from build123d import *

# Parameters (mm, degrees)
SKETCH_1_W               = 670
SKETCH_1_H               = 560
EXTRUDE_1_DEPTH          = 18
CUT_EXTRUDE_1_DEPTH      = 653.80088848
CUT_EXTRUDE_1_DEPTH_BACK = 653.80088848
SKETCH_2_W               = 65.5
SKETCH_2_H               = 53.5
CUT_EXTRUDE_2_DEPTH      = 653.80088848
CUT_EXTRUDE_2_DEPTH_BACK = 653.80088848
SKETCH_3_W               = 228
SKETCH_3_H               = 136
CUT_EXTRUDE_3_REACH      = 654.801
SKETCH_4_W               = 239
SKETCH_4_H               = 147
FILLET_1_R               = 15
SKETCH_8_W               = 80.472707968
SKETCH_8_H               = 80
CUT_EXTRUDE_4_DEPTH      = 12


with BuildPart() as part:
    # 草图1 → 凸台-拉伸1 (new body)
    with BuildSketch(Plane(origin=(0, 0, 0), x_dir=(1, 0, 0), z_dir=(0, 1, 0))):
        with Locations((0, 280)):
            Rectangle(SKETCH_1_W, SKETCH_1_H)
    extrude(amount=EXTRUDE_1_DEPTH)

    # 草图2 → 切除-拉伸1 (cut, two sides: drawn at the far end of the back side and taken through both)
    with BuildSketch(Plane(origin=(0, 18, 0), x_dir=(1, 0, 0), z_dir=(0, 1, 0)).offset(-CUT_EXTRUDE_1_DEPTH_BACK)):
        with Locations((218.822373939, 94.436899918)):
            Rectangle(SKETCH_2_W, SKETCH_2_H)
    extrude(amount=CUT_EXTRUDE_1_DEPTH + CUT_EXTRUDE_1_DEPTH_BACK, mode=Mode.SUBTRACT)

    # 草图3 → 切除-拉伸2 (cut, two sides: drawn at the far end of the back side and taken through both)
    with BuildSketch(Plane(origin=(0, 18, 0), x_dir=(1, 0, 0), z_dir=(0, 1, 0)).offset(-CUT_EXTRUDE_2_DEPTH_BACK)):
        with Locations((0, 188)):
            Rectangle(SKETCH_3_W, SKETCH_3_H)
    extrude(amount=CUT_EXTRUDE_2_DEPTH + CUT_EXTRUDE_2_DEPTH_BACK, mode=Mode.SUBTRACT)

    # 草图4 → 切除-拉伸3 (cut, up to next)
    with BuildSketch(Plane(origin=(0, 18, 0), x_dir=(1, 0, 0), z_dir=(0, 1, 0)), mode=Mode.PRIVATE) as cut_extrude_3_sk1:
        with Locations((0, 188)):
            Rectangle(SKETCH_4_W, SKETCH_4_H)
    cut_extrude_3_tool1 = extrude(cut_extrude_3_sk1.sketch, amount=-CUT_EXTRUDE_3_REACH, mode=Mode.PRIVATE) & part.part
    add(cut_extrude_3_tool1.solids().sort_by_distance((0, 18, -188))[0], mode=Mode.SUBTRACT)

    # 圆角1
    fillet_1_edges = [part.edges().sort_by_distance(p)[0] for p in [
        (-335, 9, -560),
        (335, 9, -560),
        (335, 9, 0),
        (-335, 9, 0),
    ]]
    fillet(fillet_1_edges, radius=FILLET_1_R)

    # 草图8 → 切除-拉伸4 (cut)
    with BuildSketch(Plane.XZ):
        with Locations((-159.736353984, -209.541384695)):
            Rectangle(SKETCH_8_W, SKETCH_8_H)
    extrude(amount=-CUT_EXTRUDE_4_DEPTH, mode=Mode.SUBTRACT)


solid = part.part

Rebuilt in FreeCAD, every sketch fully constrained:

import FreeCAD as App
import Part
import Sketcher

V = App.Vector


def edges_at(feature, points):
    """Names of the edges that pass closest to the given points."""
    edges = feature.Shape.Edges
    near = lambda p: min(range(len(edges)), key=lambda i: edges[i].distToShape(Part.Vertex(*p))[0])
    return sorted({f"Edge{near(p) + 1}" for p in points})

doc = App.newDocument("Part")
body = doc.addObject("PartDesign::Body", "Body")

# Sketch on XZ plane
sketch1 = body.newObject("Sketcher::SketchObject", "Sketch")
sketch1.AttachmentSupport = (doc.getObject("XZ_Plane"), [""])
sketch1.MapMode = "FlatFace"
sketch1.addGeometry([
    Part.LineSegment(V(-335, -560, 0), V(-335, 0, 0)),
    Part.LineSegment(V(-335, 0, 0), V(335, 0, 0)),
    Part.LineSegment(V(335, 0, 0), V(335, -560, 0)),
    Part.LineSegment(V(335, -560, 0), V(-335, -560, 0)),
], False)
sketch1.addConstraint([
    Sketcher.Constraint("Coincident", 0, 2, 1, 1),
    Sketcher.Constraint("Coincident", 1, 2, 2, 1),
    Sketcher.Constraint("Coincident", 2, 2, 3, 1),
    Sketcher.Constraint("Coincident", 3, 2, 0, 1),
    Sketcher.Constraint("Vertical", 0),
    Sketcher.Constraint("Horizontal", 1),
    Sketcher.Constraint("Vertical", 2),
    Sketcher.Constraint("Horizontal", 3),
    Sketcher.Constraint("Symmetric", 0, 2, 1, 2, -1, 1),
    Sketcher.Constraint("DistanceX", 1, 1, 1, 2, 670.0),
    Sketcher.Constraint("DistanceY", 0, 1, 0, 2, 560.0),
])
pad1 = body.newObject("PartDesign::Pad", "Pad")
pad1.Profile = sketch1
pad1.Length = 18
pad1.Reversed = True

# Sketch on XZ plane
sketch2 = body.newObject("Sketcher::SketchObject", "Sketch001")
sketch2.AttachmentSupport = (doc.getObject("XZ_Plane"), [""])
sketch2.MapMode = "FlatFace"
sketch2.AttachmentOffset = App.Placement(V(0, 0, -18), App.Rotation())
sketch2.addGeometry([
    Part.LineSegment(V(186.072374, -121.1869, 0), V(186.072374, -67.6869, 0)),
    Part.LineSegment(V(186.072374, -67.6869, 0), V(251.572374, -67.6869, 0)),
    Part.LineSegment(V(251.572374, -67.6869, 0), V(251.572374, -121.1869, 0)),
    Part.LineSegment(V(251.572374, -121.1869, 0), V(186.072374, -121.1869, 0)),
], False)
sketch2.addConstraint([
    Sketcher.Constraint("Coincident", 0, 2, 1, 1),
    Sketcher.Constraint("Coincident", 1, 2, 2, 1),
    Sketcher.Constraint("Coincident", 2, 2, 3, 1),
    Sketcher.Constraint("Coincident", 3, 2, 0, 1),
    Sketcher.Constraint("Vertical", 0),
    Sketcher.Constraint("Horizontal", 1),
    Sketcher.Constraint("Vertical", 2),
    Sketcher.Constraint("Horizontal", 3),
    Sketcher.Constraint("DistanceX", 1, 1, 1, 2, 65.5),
    Sketcher.Constraint("DistanceY", 0, 1, 0, 2, 53.5),
    Sketcher.Constraint("DistanceY", 0, 2, -1, 1, 67.6869),
    Sketcher.Constraint("DistanceX", -1, 1, 0, 2, 186.072374),
])
pocket1 = body.newObject("PartDesign::Pocket", "Pocket")
pocket1.Profile = sketch2
pocket1.Type = "ThroughAll"
pocket1.Midplane = True

# Sketch on XZ plane
sketch3 = body.newObject("Sketcher::SketchObject", "Sketch002")
sketch3.AttachmentSupport = (doc.getObject("XZ_Plane"), [""])
sketch3.MapMode = "FlatFace"
sketch3.AttachmentOffset = App.Placement(V(0, 0, -18), App.Rotation())
sketch3.addGeometry([
    Part.LineSegment(V(-114, -256, 0), V(-114, -120, 0)),
    Part.LineSegment(V(-114, -120, 0), V(114, -120, 0)),
    Part.LineSegment(V(114, -120, 0), V(114, -256, 0)),
    Part.LineSegment(V(114, -256, 0), V(-114, -256, 0)),
], False)
sketch3.addConstraint([
    Sketcher.Constraint("Coincident", 0, 2, 1, 1),
    Sketcher.Constraint("Coincident", 1, 2, 2, 1),
    Sketcher.Constraint("Coincident", 2, 2, 3, 1),
    Sketcher.Constraint("Coincident", 3, 2, 0, 1),
    Sketcher.Constraint("Vertical", 0),
    Sketcher.Constraint("Horizontal", 1),
    Sketcher.Constraint("Vertical", 2),
    Sketcher.Constraint("Horizontal", 3),
    Sketcher.Constraint("DistanceX", 1, 1, 1, 2, 228.0),
    Sketcher.Constraint("DistanceY", 0, 1, 0, 2, 136.0),
    Sketcher.Constraint("DistanceX", 0, 2, -1, 1, 114.0),
    Sketcher.Constraint("DistanceY", 0, 2, -1, 1, 120.0),
])
pocket2 = body.newObject("PartDesign::Pocket", "Pocket001")
pocket2.Profile = sketch3
pocket2.Type = "ThroughAll"
pocket2.Midplane = True

# Sketch on XZ plane
sketch4 = body.newObject("Sketcher::SketchObject", "Sketch003")
sketch4.AttachmentSupport = (doc.getObject("XZ_Plane"), [""])
sketch4.MapMode = "FlatFace"
sketch4.AttachmentOffset = App.Placement(V(0, 0, -18), App.Rotation())
sketch4.addGeometry([
    Part.LineSegment(V(-119.5, -261.5, 0), V(-119.5, -114.5, 0)),
    Part.LineSegment(V(-119.5, -114.5, 0), V(119.5, -114.5, 0)),
    Part.LineSegment(V(119.5, -114.5, 0), V(119.5, -261.5, 0)),
    Part.LineSegment(V(119.5, -261.5, 0), V(-119.5, -261.5, 0)),
], False)
sketch4.addConstraint([
    Sketcher.Constraint("Coincident", 0, 2, 1, 1),
    Sketcher.Constraint("Coincident", 1, 2, 2, 1),
    Sketcher.Constraint("Coincident", 2, 2, 3, 1),
    Sketcher.Constraint("Coincident", 3, 2, 0, 1),
    Sketcher.Constraint("Vertical", 0),
    Sketcher.Constraint("Horizontal", 1),
    Sketcher.Constraint("Vertical", 2),
    Sketcher.Constraint("Horizontal", 3),
    Sketcher.Constraint("DistanceX", 1, 1, 1, 2, 239.0),
    Sketcher.Constraint("DistanceY", 0, 1, 0, 2, 147.0),
    Sketcher.Constraint("DistanceX", 0, 2, -1, 1, 119.5),
    Sketcher.Constraint("DistanceY", 0, 2, -1, 1, 114.5),
])
pocket3 = body.newObject("PartDesign::Pocket", "Pocket002")
pocket3.Profile = sketch4
pocket3.Length = 18
pocket3.Reversed = True
doc.recompute()

fillet = body.newObject("PartDesign::Fillet", "Fillet")
fillet.Base = (pocket3, edges_at(pocket3, [
    (-335, 9, -560),
    (335, 9, -560),
    (335, 9, 0),
    (-335, 9, 0),
]))
fillet.Radius = 15

# Sketch on XZ plane
sketch5 = body.newObject("Sketcher::SketchObject", "Sketch004")
sketch5.AttachmentSupport = (doc.getObject("XZ_Plane"), [""])
sketch5.MapMode = "FlatFace"
sketch5.addGeometry([
    Part.LineSegment(V(-199.972708, -169.541385, 0), V(-199.972708, -249.541385, 0)),
    Part.LineSegment(V(-199.972708, -249.541385, 0), V(-119.5, -249.541385, 0)),
    Part.LineSegment(V(-119.5, -249.541385, 0), V(-119.5, -169.541385, 0)),
    Part.LineSegment(V(-119.5, -169.541385, 0), V(-199.972708, -169.541385, 0)),
], False)
sketch5.addConstraint([
    Sketcher.Constraint("Coincident", 0, 2, 1, 1),
    Sketcher.Constraint("Coincident", 1, 2, 2, 1),
    Sketcher.Constraint("Coincident", 2, 2, 3, 1),
    Sketcher.Constraint("Coincident", 3, 2, 0, 1),
    Sketcher.Constraint("Vertical", 0),
    Sketcher.Constraint("Horizontal", 1),
    Sketcher.Constraint("Vertical", 2),
    Sketcher.Constraint("Horizontal", 3),
    Sketcher.Constraint("DistanceY", 0, 2, 0, 1, 80.0),
    Sketcher.Constraint("DistanceX", 1, 2, -1, 1, 119.5),
    Sketcher.Constraint("DistanceX", 1, 1, 1, 2, 80.472708),
    Sketcher.Constraint("DistanceY", 0, 2, -1, 1, 249.541385),
])
pocket4 = body.newObject("PartDesign::Pocket", "Pocket003")
pocket4.Profile = sketch5
pocket4.Length = 12

doc.recompute()
